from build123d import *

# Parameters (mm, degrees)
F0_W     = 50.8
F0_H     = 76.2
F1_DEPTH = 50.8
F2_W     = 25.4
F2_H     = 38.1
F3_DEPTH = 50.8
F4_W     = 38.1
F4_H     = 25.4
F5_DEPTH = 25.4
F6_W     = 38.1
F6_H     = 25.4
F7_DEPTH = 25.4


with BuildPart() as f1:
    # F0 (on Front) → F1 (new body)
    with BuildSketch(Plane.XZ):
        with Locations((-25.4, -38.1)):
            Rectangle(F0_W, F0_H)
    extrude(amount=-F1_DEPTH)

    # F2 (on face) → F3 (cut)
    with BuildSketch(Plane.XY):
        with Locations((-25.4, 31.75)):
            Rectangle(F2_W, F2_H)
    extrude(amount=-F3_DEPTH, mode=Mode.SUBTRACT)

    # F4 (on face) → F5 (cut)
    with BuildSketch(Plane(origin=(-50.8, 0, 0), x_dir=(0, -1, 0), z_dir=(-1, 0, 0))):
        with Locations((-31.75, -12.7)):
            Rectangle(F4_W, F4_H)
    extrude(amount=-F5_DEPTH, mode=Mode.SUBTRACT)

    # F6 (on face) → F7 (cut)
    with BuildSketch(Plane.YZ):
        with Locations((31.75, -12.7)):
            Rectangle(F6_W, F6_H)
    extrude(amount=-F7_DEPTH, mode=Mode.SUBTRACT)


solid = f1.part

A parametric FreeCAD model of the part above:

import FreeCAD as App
import Part
import Sketcher

V = App.Vector
Q = App.Units.Quantity

doc = App.newDocument("Part")
body = doc.addObject("PartDesign::Body", "Body")

sketch1 = body.newObject("Sketcher::SketchObject", "Sketch")
sketch1.AttachmentSupport = (doc.getObject("XZ_Plane"), [""])
sketch1.MapMode = "FlatFace"
sketch1.addGeometry([
    Part.LineSegment(V(-50.8, 0, 0), V(-50.8, -76.2, 0)),
    Part.LineSegment(V(-50.8, -76.2, 0), V(0, -76.2, 0)),
    Part.LineSegment(V(0, -76.2, 0), V(0, 0, 0)),
    Part.LineSegment(V(0, 0, 0), V(-50.8, 0, 0)),
], False)
sketch1.addConstraint([
    Sketcher.Constraint("Coincident", 0, 2, 1, 1),
    Sketcher.Constraint("Coincident", 1, 2, 2, 1),
    Sketcher.Constraint("Coincident", 2, 2, 3, 1),
    Sketcher.Constraint("Coincident", 3, 2, 0, 1),
    Sketcher.Constraint("Vertical", 0),
    Sketcher.Constraint("Horizontal", 1),
    Sketcher.Constraint("Vertical", 2),
    Sketcher.Constraint("Horizontal", 3),
    Sketcher.Constraint("Coincident", 2, 2, -1, 1),
    Sketcher.Constraint("DistanceX", 1, 1, 1, 2, Q("2 in")),
    Sketcher.Constraint("DistanceY", 0, 2, 0, 1, Q("3 in")),
])
pad1 = body.newObject("PartDesign::Pad", "Pad")
pad1.Profile = sketch1
pad1.Length = Q("2 in")
pad1.Reversed = True

sketch2 = body.newObject("Sketcher::SketchObject", "Sketch001")
sketch2.AttachmentSupport = (doc.getObject("XY_Plane"), [""])
sketch2.MapMode = "FlatFace"
sketch2.addGeometry([
    Part.LineSegment(V(-38.1, 50.8, 0), V(-38.1, 12.7, 0)),
    Part.LineSegment(V(-38.1, 12.7, 0), V(-12.7, 12.7, 0)),
    Part.LineSegment(V(-12.7, 12.7, 0), V(-12.7, 50.8, 0)),
    Part.LineSegment(V(-12.7, 50.8, 0), V(-38.1, 50.8, 0)),
], False)
sketch2.addConstraint([
    Sketcher.Constraint("Coincident", 0, 2, 1, 1),
    Sketcher.Constraint("Coincident", 1, 2, 2, 1),
    Sketcher.Constraint("Coincident", 2, 2, 3, 1),
    Sketcher.Constraint("Coincident", 3, 2, 0, 1),
    Sketcher.Constraint("Vertical", 0),
    Sketcher.Constraint("Horizontal", 1),
    Sketcher.Constraint("Vertical", 2),
    Sketcher.Constraint("Horizontal", 3),
    Sketcher.Constraint("DistanceX", 1, 1, 1, 2, Q("1 in")),
    Sketcher.Constraint("DistanceY", 0, 2, 0, 1, Q("1.5 in")),
    Sketcher.Constraint("DistanceY", -1, 1, 2, 2, Q("2 in")),
    Sketcher.Constraint("DistanceX", 0, 2, -1, 1, Q("1.5 in")),
])
pocket1 = body.newObject("PartDesign::Pocket", "Pocket")
pocket1.Profile = sketch2
pocket1.Length = Q("2 in")

sketch3 = body.newObject("Sketcher::SketchObject", "Sketch002")
sketch3.AttachmentSupport = (doc.getObject("YZ_Plane"), [""])
sketch3.MapMode = "FlatFace"
sketch3.AttachmentOffset = App.Placement(V(0, 0, -2 * 25.4), App.Rotation())
sketch3.addGeometry([
    Part.LineSegment(V(50.8, 0, 0), V(50.8, -25.4, 0)),
    Part.LineSegment(V(50.8, -25.4, 0), V(12.7, -25.4, 0)),
    Part.LineSegment(V(12.7, -25.4, 0), V(12.7, 0, 0)),
    Part.LineSegment(V(12.7, 0, 0), V(50.8, 0, 0)),
], False)
sketch3.addConstraint([
    Sketcher.Constraint("Coincident", 0, 2, 1, 1),
    Sketcher.Constraint("Coincident", 1, 2, 2, 1),
    Sketcher.Constraint("Coincident", 2, 2, 3, 1),
    Sketcher.Constraint("Coincident", 3, 2, 0, 1),
    Sketcher.Constraint("Vertical", 0),
    Sketcher.Constraint("Horizontal", 1),
    Sketcher.Constraint("Vertical", 2),
    Sketcher.Constraint("Horizontal", 3),
    Sketcher.Constraint("PointOnObject", 2, 2, -1),
    Sketcher.Constraint("DistanceY", 0, 2, 0, 1, Q("1 in")),
    Sketcher.Constraint("DistanceX", 1, 2, 1, 1, Q("1.5 in")),
    Sketcher.Constraint("DistanceX", -1, 1, 0, 2, Q("2 in")),
])
pocket2 = body.newObject("PartDesign::Pocket", "Pocket001")
pocket2.Profile = sketch3
pocket2.Length = Q("1 in")
pocket2.Reversed = True

sketch4 = body.newObject("Sketcher::SketchObject", "Sketch003")
sketch4.AttachmentSupport = (doc.getObject("YZ_Plane"), [""])
sketch4.MapMode = "FlatFace"
sketch4.addGeometry([
    Part.LineSegment(V(12.7, 0, 0), V(12.7, -25.4, 0)),
    Part.LineSegment(V(12.7, -25.4, 0), V(50.8, -25.4, 0)),
    Part.LineSegment(V(50.8, -25.4, 0), V(50.8, 0, 0)),
    Part.LineSegment(V(50.8, 0, 0), V(12.7, 0, 0)),
], False)
sketch4.addConstraint([
    Sketcher.Constraint("Coincident", 0, 2, 1, 1),
    Sketcher.Constraint("Coincident", 1, 2, 2, 1),
    Sketcher.Constraint("Coincident", 2, 2, 3, 1),
    Sketcher.Constraint("Coincident", 3, 2, 0, 1),
    Sketcher.Constraint("Vertical", 0),
    Sketcher.Constraint("Horizontal", 1),
    Sketcher.Constraint("Vertical", 2),
    Sketcher.Constraint("Horizontal", 3),
    Sketcher.Constraint("PointOnObject", 2, 2, -1),
    Sketcher.Constraint("DistanceY", 0, 2, 0, 1, Q("1 in")),
    Sketcher.Constraint("DistanceX", 1, 1, 1, 2, Q("1.5 in")),
    Sketcher.Constraint("DistanceX", -1, 1, 1, 2, Q("2 in")),
])
pocket3 = body.newObject("PartDesign::Pocket", "Pocket002")
pocket3.Profile = sketch4
pocket3.Length = Q("1 in")

doc.recompute()
